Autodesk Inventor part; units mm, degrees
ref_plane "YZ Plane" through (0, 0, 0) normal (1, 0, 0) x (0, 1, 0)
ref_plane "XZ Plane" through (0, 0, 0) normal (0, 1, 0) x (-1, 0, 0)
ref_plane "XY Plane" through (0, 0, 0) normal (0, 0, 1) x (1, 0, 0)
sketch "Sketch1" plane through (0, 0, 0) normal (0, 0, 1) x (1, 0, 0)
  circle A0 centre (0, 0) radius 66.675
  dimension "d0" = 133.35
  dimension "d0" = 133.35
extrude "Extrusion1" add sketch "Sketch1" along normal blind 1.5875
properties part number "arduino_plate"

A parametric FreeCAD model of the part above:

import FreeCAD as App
import Part
import Sketcher

V = App.Vector
Q = App.Units.Quantity

doc = App.newDocument("Part")
params = doc.addObject("Spreadsheet::Sheet", "Params")
for row, (alias, value) in enumerate([
    ("sketch1_diameter", "5.25 in"),
    ("pad1_length", "0.0625 in"),
], start=1):
    params.set(f"A{row}", alias)
    params.set(f"B{row}", "=" + value)
    params.setAlias(f"B{row}", alias)

body = doc.addObject("PartDesign::Body", "Body")

sketch1 = body.newObject("Sketcher::SketchObject", "Sketch")
sketch1.AttachmentSupport = (doc.getObject("XY_Plane"), [""])
sketch1.MapMode = "FlatFace"
sketch1.addGeometry(Part.Circle(V(0, 0, 0), V(0, 0, 1), 67), False)
sketch1.addConstraint(Sketcher.Constraint("Coincident", 0, 3, -1, 1))
sketch1.addConstraint(Sketcher.Constraint("Diameter", 0, Q("5.25 in")))
sketch1.setExpression("Constraints[1]", "Params.sketch1_diameter")
pad1 = body.newObject("PartDesign::Pad", "Pad")
pad1.Profile = sketch1
pad1.setExpression("Length", "Params.pad1_length")

doc.recompute()
